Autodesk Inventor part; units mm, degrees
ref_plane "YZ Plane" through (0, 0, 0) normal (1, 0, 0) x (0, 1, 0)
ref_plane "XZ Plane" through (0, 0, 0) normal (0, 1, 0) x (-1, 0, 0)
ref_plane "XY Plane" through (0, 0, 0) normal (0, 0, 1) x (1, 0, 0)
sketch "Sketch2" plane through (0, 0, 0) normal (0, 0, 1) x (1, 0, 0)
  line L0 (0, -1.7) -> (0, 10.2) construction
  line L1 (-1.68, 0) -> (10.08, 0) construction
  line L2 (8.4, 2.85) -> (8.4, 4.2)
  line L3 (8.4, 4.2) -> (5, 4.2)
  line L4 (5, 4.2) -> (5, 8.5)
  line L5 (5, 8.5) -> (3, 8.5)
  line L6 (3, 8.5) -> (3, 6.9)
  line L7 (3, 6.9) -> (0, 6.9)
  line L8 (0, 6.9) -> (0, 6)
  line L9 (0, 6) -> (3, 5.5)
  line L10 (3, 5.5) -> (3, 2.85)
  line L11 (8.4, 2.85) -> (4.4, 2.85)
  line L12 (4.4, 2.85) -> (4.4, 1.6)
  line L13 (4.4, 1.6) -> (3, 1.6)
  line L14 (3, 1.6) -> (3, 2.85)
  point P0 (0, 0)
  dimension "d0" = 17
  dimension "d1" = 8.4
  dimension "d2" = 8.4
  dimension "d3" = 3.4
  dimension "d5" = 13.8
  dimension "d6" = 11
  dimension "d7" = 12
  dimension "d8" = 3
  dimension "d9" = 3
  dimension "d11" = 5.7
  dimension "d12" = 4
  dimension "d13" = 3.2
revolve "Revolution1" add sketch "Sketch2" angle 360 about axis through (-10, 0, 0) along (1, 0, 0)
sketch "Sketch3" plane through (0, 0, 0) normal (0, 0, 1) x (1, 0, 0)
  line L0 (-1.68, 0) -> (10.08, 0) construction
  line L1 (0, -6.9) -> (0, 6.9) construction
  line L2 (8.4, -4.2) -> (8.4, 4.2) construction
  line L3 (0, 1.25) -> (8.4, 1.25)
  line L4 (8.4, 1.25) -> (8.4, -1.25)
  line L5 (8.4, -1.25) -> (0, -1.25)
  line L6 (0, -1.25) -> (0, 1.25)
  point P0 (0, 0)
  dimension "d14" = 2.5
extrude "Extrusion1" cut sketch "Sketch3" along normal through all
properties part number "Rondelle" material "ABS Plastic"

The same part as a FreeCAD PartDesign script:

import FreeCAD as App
import Part
import Sketcher
from FreeCAD import Vector
Q = App.Units.Quantity

doc = App.newDocument("Part")
params = doc.addObject("Spreadsheet::Sheet", "Params")
for row, (alias, value) in enumerate([
    ("sketch1_width", "4 mm"),
    ("sketch1_width2", "3 mm"),
    ("sketch1_width3", "3.4 mm"),
    ("sketch1_height", "4.3 mm"),
    ("sketch1_height2", "1.6 mm"),
    ("revolution_angle", "360 deg"),
    ("sketch2_height", "2.5 mm"),
    ("sketch2_width", "8.4 mm"),
], start=1):
    params.set(f"A{row}", alias)
    params.set(f"B{row}", "=" + value)
    params.setAlias(f"B{row}", alias)

body = doc.addObject("PartDesign::Body", "Body")

# Sketch on XY plane
sketch1 = body.newObject("Sketcher::SketchObject", "Sketch")
sketch1.AttachmentSupport = (doc.getObject("XY_Plane"), [""])
sketch1.MapMode = "FlatFace"
sketch1.addGeometry([
    Part.LineSegment(Vector(4.4, 2.9, 0), Vector(8.4, 2.9, 0)),  # 0
    Part.LineSegment(Vector(8.4, 2.9, 0), Vector(8.4, 4.2, 0)),  # 1
    Part.LineSegment(Vector(8.4, 4.2, 0), Vector(5, 4.2, 0)),  # 2
    Part.LineSegment(Vector(5, 4.2, 0), Vector(5, 8.5, 0)),  # 3
    Part.LineSegment(Vector(5, 8.5, 0), Vector(3, 8.5, 0)),  # 4
    Part.LineSegment(Vector(3, 8.5, 0), Vector(3, 6.9, 0)),  # 5
    Part.LineSegment(Vector(3, 6.9, 0), Vector(0, 6.9, 0)),  # 6
    Part.LineSegment(Vector(0, 6.9, 0), Vector(0, 6, 0)),  # 7
    Part.LineSegment(Vector(0, 6, 0), Vector(3, 5.5, 0)),  # 8
    Part.LineSegment(Vector(3, 5.5, 0), Vector(3, 1.6, 0)),  # 9
    Part.LineSegment(Vector(3, 1.6, 0), Vector(4.4, 1.6, 0)),  # 10
    Part.LineSegment(Vector(4.4, 1.6, 0), Vector(4.4, 2.9, 0)),  # 11
], False)
sketch1.addConstraint([
    Sketcher.Constraint("Coincident", 0, 2, 1, 1),
    Sketcher.Constraint("Coincident", 1, 2, 2, 1),
    Sketcher.Constraint("Coincident", 2, 2, 3, 1),
    Sketcher.Constraint("Coincident", 3, 2, 4, 1),
    Sketcher.Constraint("Coincident", 4, 2, 5, 1),
    Sketcher.Constraint("Coincident", 5, 2, 6, 1),
    Sketcher.Constraint("Coincident", 6, 2, 7, 1),
    Sketcher.Constraint("Coincident", 7, 2, 8, 1),
    Sketcher.Constraint("Coincident", 8, 2, 9, 1),
    Sketcher.Constraint("Coincident", 9, 2, 10, 1),
    Sketcher.Constraint("Coincident", 10, 2, 11, 1),
    Sketcher.Constraint("Coincident", 11, 2, 0, 1),
    Sketcher.Constraint("Horizontal", 0),
    Sketcher.Constraint("Vertical", 1),
    Sketcher.Constraint("Horizontal", 2),
    Sketcher.Constraint("Vertical", 3),
    Sketcher.Constraint("Horizontal", 4),
    Sketcher.Constraint("Vertical", 5),
    Sketcher.Constraint("Horizontal", 6),
    Sketcher.Constraint("Vertical", 7),
    Sketcher.Constraint("Vertical", 9),
    Sketcher.Constraint("Horizontal", 10),
    Sketcher.Constraint("Vertical", 11),
    Sketcher.Constraint("PointOnObject", 6, 2, -2),
    Sketcher.Constraint("Vertical", 5, 2, 8, 2),
    Sketcher.Constraint("DistanceX", 0, 1, 0, 2, Q("4 mm")),
    Sketcher.Constraint("DistanceX", 6, 2, 6, 1, Q("3 mm")),
    Sketcher.Constraint("DistanceX", 2, 2, 2, 1, Q("3.4 mm")),
    Sketcher.Constraint("DistanceY", 8, 2, 4, 2, Q("3 mm")),
    Sketcher.Constraint("DistanceX", -1, 1, 0, 2, Q("8.4 mm")),
    Sketcher.Constraint("DistanceY", 3, 1, 3, 2, Q("4.3 mm")),
    Sketcher.Constraint("DistanceY", 5, 2, 5, 1, Q("1.6 mm")),
    Sketcher.Constraint("DistanceY", 7, 2, 7, 1, Q("0.9 mm")),
    Sketcher.Constraint("DistanceY", 9, 2, 9, 1, Q("3.9 mm")),
    Sketcher.Constraint("DistanceY", -1, 1, 7, 2, Q("6 mm")),
    Sketcher.Constraint("DistanceY", 1, 1, 1, 2, Q("1.35 mm")),
])
sketch1.setExpression("Constraints[25]", "Params.sketch1_width")
sketch1.setExpression("Constraints[26]", "Params.sketch1_width2")
sketch1.setExpression("Constraints[27]", "Params.sketch1_width3")
sketch1.setExpression("Constraints[30]", "Params.sketch1_height")
sketch1.setExpression("Constraints[31]", "Params.sketch1_height2")
revolution = body.newObject("PartDesign::Revolution", "Revolution")
revolution.Profile = sketch1
revolution.ReferenceAxis = (sketch1, ["H_Axis"])
revolution.setExpression("Angle", "Params.revolution_angle")

# Sketch on XY plane
sketch2 = body.newObject("Sketcher::SketchObject", "Sketch001")
sketch2.AttachmentSupport = (doc.getObject("XY_Plane"), [""])
sketch2.MapMode = "FlatFace"
sketch2.addGeometry([
    Part.LineSegment(Vector(8.4, 1.2, 0), Vector(0, 1.2, 0)),
    Part.LineSegment(Vector(0, 1.2, 0), Vector(0, -1.2, 0)),
    Part.LineSegment(Vector(0, -1.2, 0), Vector(8.4, -1.2, 0)),
    Part.LineSegment(Vector(8.4, -1.2, 0), Vector(8.4, 1.2, 0)),
], False)
sketch2.addConstraint([
    Sketcher.Constraint("Coincident", 0, 2, 1, 1),
    Sketcher.Constraint("Coincident", 1, 2, 2, 1),
    Sketcher.Constraint("Coincident", 2, 2, 3, 1),
    Sketcher.Constraint("Coincident", 3, 2, 0, 1),
    Sketcher.Constraint("Horizontal", 0),
    Sketcher.Constraint("Vertical", 1),
    Sketcher.Constraint("Horizontal", 2),
    Sketcher.Constraint("Vertical", 3),
    Sketcher.Constraint("Symmetric", 0, 2, 1, 2, -1, 1),
    Sketcher.Constraint("DistanceY", 1, 2, 1, 1, Q("2.5 mm")),
    Sketcher.Constraint("DistanceX", 0, 2, 0, 1, Q("8.4 mm")),
])
sketch2.setExpression("Constraints[9]", "Params.sketch2_height")
sketch2.setExpression("Constraints[10]", "Params.sketch2_width")
pocket1 = body.newObject("PartDesign::Pocket", "Pocket")
pocket1.Profile = sketch2
pocket1.Type = "ThroughAll"
pocket1.Reversed = True

doc.recompute()
